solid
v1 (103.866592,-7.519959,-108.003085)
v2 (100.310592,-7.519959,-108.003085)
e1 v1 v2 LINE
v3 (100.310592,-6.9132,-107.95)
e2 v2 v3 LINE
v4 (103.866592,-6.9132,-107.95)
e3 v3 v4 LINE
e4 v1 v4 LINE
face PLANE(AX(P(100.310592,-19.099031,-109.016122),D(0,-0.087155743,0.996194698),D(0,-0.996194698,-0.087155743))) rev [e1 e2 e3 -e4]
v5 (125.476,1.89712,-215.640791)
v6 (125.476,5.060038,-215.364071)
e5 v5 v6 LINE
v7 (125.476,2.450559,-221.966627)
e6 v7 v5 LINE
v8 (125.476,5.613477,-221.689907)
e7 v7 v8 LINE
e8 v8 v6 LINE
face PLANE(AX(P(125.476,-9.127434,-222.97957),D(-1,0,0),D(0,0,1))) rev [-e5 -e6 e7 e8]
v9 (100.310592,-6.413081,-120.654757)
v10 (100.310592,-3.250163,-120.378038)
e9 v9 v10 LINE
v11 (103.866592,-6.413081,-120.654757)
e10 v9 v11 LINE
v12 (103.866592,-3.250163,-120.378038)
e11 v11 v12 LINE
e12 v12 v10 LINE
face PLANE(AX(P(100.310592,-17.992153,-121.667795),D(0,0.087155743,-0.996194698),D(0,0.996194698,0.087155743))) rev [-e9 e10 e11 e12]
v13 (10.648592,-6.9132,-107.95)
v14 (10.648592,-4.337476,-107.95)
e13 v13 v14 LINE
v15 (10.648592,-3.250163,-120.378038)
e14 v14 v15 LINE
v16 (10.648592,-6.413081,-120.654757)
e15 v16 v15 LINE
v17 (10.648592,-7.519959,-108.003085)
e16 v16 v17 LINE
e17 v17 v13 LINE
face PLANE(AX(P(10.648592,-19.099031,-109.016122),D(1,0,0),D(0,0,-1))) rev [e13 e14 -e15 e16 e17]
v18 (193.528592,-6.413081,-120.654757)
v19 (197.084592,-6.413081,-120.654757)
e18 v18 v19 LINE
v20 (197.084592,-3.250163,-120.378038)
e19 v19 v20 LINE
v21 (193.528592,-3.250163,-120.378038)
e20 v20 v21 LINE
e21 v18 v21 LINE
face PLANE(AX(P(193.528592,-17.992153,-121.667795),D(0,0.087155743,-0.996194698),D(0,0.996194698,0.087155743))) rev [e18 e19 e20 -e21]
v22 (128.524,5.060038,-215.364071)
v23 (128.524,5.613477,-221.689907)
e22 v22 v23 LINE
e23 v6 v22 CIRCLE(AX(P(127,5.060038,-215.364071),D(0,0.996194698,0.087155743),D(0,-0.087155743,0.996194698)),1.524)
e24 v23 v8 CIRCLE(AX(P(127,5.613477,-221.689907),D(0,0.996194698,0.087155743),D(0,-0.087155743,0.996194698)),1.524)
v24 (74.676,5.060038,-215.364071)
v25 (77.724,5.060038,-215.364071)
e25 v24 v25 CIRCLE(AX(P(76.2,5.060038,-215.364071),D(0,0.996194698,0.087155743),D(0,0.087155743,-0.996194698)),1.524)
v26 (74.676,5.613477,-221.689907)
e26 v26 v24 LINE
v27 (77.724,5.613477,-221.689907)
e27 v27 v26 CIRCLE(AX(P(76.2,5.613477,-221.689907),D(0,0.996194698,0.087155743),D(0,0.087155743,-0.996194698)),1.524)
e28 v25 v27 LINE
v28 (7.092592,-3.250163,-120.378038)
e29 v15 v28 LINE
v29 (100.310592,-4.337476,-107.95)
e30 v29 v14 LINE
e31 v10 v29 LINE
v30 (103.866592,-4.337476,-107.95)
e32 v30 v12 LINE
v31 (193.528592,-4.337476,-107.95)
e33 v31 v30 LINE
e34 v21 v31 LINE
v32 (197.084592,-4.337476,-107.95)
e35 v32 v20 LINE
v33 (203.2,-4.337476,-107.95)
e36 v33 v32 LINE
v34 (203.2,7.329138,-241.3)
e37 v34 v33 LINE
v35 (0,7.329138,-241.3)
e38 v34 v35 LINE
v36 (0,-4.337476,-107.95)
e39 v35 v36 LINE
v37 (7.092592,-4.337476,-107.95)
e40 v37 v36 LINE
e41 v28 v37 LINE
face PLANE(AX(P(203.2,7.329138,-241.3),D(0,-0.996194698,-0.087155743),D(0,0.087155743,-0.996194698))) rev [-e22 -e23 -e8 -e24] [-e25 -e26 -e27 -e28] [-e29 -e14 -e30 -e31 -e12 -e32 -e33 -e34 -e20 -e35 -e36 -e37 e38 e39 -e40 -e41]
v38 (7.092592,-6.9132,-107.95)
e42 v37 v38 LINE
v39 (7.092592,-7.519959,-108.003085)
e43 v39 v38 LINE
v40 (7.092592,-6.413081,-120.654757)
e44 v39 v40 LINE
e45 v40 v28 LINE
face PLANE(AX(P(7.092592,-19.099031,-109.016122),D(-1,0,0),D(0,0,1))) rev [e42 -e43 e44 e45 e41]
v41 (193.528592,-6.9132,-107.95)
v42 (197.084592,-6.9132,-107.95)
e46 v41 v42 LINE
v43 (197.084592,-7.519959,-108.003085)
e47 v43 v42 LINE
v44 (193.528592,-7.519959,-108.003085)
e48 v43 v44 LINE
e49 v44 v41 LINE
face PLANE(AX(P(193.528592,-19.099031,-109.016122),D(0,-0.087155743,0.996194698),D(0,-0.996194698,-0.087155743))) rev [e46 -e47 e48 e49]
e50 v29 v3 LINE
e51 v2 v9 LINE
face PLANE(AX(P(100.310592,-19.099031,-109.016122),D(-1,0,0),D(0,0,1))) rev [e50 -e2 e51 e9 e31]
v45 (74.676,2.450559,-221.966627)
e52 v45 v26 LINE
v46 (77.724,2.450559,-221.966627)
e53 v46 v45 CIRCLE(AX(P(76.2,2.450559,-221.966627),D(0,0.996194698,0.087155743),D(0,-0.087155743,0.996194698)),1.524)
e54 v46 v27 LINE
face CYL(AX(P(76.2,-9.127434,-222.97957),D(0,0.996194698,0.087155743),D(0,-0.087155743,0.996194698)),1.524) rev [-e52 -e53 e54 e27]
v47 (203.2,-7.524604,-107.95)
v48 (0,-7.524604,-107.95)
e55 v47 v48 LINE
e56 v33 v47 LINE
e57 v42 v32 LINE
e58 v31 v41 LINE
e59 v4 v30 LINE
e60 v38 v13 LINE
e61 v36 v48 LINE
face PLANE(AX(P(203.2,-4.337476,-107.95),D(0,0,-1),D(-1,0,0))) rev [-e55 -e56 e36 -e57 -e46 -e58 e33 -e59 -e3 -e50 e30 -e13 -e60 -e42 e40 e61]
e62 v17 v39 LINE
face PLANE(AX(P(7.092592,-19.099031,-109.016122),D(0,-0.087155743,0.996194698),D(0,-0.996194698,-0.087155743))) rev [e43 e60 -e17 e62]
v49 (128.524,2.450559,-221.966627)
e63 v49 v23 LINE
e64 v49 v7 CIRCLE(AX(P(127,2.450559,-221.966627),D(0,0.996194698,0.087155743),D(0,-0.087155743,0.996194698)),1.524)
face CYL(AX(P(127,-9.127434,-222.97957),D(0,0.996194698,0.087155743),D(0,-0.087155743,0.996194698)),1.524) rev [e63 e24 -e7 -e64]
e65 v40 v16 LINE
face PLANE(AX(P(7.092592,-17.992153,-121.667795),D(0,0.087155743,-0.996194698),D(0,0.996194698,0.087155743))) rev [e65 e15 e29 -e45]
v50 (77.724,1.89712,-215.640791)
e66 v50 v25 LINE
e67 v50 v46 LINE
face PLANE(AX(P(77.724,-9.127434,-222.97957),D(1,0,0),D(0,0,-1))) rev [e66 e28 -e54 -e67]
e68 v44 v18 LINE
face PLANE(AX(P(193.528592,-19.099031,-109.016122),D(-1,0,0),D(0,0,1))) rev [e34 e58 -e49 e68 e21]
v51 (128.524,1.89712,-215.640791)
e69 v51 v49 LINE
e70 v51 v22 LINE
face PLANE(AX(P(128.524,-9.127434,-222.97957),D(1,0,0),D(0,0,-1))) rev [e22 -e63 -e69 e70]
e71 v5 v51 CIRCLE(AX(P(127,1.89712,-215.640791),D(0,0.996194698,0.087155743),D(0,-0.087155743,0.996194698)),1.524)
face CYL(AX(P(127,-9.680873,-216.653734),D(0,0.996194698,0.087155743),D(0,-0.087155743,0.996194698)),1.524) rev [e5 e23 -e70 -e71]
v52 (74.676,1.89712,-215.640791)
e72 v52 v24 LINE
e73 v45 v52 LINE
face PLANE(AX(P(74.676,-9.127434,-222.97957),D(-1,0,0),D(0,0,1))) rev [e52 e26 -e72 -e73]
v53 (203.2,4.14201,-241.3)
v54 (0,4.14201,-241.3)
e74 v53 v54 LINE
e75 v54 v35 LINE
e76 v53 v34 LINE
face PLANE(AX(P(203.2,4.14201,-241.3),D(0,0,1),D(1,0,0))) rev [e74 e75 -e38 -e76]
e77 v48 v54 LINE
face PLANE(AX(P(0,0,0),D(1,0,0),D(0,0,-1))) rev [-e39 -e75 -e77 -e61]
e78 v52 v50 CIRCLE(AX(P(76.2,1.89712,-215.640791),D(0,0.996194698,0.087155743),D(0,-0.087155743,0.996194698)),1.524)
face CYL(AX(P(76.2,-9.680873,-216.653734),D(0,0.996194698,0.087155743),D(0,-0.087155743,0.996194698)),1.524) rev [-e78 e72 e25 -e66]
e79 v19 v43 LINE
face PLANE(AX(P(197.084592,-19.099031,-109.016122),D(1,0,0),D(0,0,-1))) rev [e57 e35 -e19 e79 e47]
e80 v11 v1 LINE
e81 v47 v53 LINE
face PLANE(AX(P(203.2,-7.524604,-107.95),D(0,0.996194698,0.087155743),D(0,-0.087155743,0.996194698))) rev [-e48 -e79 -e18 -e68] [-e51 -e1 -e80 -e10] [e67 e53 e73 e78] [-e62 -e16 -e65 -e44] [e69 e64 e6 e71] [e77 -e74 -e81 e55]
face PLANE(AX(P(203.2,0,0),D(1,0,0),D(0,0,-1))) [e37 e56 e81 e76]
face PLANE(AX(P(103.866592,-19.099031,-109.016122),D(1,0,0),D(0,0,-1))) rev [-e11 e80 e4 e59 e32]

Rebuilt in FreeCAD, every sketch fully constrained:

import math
import FreeCAD as App
import Part
import Sketcher
from FreeCAD import Vector
Q = App.Units.Quantity


def add_polygon(sketch, points):
    """Adds a closed chain of lines whose ends are joined by coincident constraints."""
    first, n = sketch.GeometryCount, len(points)
    for a, b in zip(points, points[1:] + points[:1]):
        sketch.addGeometry(Part.LineSegment(App.Vector(*a, 0), App.Vector(*b, 0)), False)
    for i in range(n):
        sketch.addConstraint(Sketcher.Constraint("Coincident", first + i, 2, first + (i + 1) % n, 1))

doc = App.newDocument("Part")
body = doc.addObject("PartDesign::Body", "Body")

# Sketch on YZ plane
sketch1 = body.newObject("Sketcher::SketchObject", "Sketch")
sketch1.AttachmentSupport = (doc.getObject("YZ_Plane"), [""])
sketch1.MapMode = "FlatFace"
add_polygon(sketch1, [(-4.3, -108), (-7.5, -108), (4.1, -241.3), (7.3, -241.3)])  # lines 0-3
sketch1.addConstraint([
    Sketcher.Constraint("Horizontal", 0),
    Sketcher.Constraint("Horizontal", 2),
    Sketcher.Constraint("Parallel", 1, 3),
    Sketcher.Constraint("Angle", 1, Q("-85 deg")),
    Sketcher.Constraint("DistanceY", 1, 2, -1, 1, Q("9.5 in")),
    Sketcher.Constraint("DistanceY", 0, 2, -1, 1, Q("4.25 in")),
    Sketcher.Constraint("DistanceX", 0, 2, 0, 1, Q("3.187128 mm")),
    Sketcher.Constraint("DistanceX", -1, 1, 1, 2, Q("4.14201 mm")),
])
pad1 = body.newObject("PartDesign::Pad", "Pad")
pad1.Profile = sketch1
pad1.Length = Q("8 in")

# Sketch on an angled plane
sketch2 = body.newObject("Sketcher::SketchObject", "Sketch001")
sketch2.Placement = App.Placement(Vector(0, -13.677188, -1.196599), App.Rotation(Vector(1, 0, 0), Vector(0, 0.087155743, -0.996194698), Vector(0, 0.996194698, 0.087155743), "ZXY"))
sketch2.addGeometry([
    Part.LineSegment(Vector(74.7, 221.3, 0), Vector(74.7, 215, 0)),  # 0
    Part.ArcOfCircle(Part.Circle(Vector(76.2, 215, 0), Vector(0, 0, 1), 1.5), math.radians(180), math.radians(360)),  # 1
    Part.LineSegment(Vector(77.7, 215, 0), Vector(77.7, 221.3, 0)),  # 2
    Part.ArcOfCircle(Part.Circle(Vector(76.2, 221.3, 0), Vector(0, 0, 1), 1.5), math.radians(0), math.radians(180)),  # 3
    Part.LineSegment(Vector(128.5, 215, 0), Vector(128.5, 221.3, 0)),  # 4
    Part.ArcOfCircle(Part.Circle(Vector(127, 221.3, 0), Vector(0, 0, 1), 1.5), math.radians(0), math.radians(180)),  # 5
    Part.LineSegment(Vector(125.5, 221.3, 0), Vector(125.5, 215, 0)),  # 6
    Part.ArcOfCircle(Part.Circle(Vector(127, 215, 0), Vector(0, 0, 1), 1.5), math.radians(180), math.radians(360)),  # 7
], False)
sketch2.addConstraint([
    Sketcher.Constraint("Tangent", 0, 2, 1, 1),
    Sketcher.Constraint("Tangent", 1, 2, 2, 1),
    Sketcher.Constraint("Tangent", 2, 2, 3, 1),
    Sketcher.Constraint("Tangent", 3, 2, 0, 1),
    Sketcher.Constraint("Tangent", 4, 2, 5, 1),
    Sketcher.Constraint("Tangent", 5, 2, 6, 1),
    Sketcher.Constraint("Tangent", 6, 2, 7, 1),
    Sketcher.Constraint("Tangent", 7, 2, 4, 1),
    Sketcher.Constraint("Vertical", 0),
    Sketcher.Constraint("Vertical", 2),
    Sketcher.Constraint("Vertical", 4),
    Sketcher.Constraint("Vertical", 6),
    Sketcher.Constraint("Equal", 3, 5),
    Sketcher.Constraint("Horizontal", 3, 3, 5, 3),
    Sketcher.Constraint("Horizontal", 1, 3, 7, 3),
    Sketcher.Constraint("Radius", 1, Q("0.06 in")),
    Sketcher.Constraint("DistanceX", -1, 1, 1, 3, Q("3 in")),
    Sketcher.Constraint("DistanceX", -1, 1, 5, 3, Q("5 in")),
    Sketcher.Constraint("DistanceY", 0, 2, 0, 1, Q("0.25 in")),
    Sketcher.Constraint("DistanceY", -1, 1, 1, 3, Q("214.985557 mm")),
])
pocket1 = body.newObject("PartDesign::Pocket", "Pocket")
pocket1.Profile = sketch2
pocket1.Type = "ThroughAll"

# Sketch on an angled plane
sketch3 = body.newObject("Sketcher::SketchObject", "Sketch002")
sketch3.Placement = App.Placement(Vector(0, -13.677188, -1.196599), App.Rotation(Vector(1, 0, 0), Vector(0, 0.087155743, -0.996194698), Vector(0, 0.996194698, 0.087155743), "ZXY"))
add_polygon(sketch3, [(7.1, 119.6), (7.1, 106.9), (10.6, 106.9), (10.6, 119.6)])  # lines 0-3
sketch3.addConstraint([
    Sketcher.Constraint("Vertical", 0),
    Sketcher.Constraint("Horizontal", 1),
    Sketcher.Constraint("Vertical", 2),
    Sketcher.Constraint("Horizontal", 3),
    Sketcher.Constraint("DistanceY", 0, 2, 0, 1, Q("0.5 in")),
    Sketcher.Constraint("DistanceX", 1, 1, 1, 2, Q("0.14 in")),
    Sketcher.Constraint("DistanceX", -1, 1, 0, 2, Q("7.092592 mm")),
    Sketcher.Constraint("DistanceY", -1, 1, 0, 2, Q("106.936693 mm")),
])
pocket2 = body.newObject("PartDesign::Pocket", "Pocket001")
pocket2.Profile = sketch3
pocket2.Type = "UpToFirst"

# Sketch on an angled plane
sketch4 = body.newObject("Sketcher::SketchObject", "Sketch003")
sketch4.Placement = App.Placement(Vector(0, -13.677188, -1.196599), App.Rotation(Vector(1, 0, 0), Vector(0, 0.087155743, -0.996194698), Vector(0, 0.996194698, 0.087155743), "ZXY"))
add_polygon(sketch4, [(100.3, 119.6), (100.3, 106.9), (103.9, 106.9), (103.9, 119.6)])  # lines 0-3
sketch4.addConstraint([
    Sketcher.Constraint("Vertical", 0),
    Sketcher.Constraint("Horizontal", 1),
    Sketcher.Constraint("Vertical", 2),
    Sketcher.Constraint("Horizontal", 3),
    Sketcher.Constraint("DistanceY", 0, 2, 0, 1, Q("0.5 in")),
    Sketcher.Constraint("DistanceX", 1, 1, 1, 2, Q("0.14 in")),
    Sketcher.Constraint("DistanceX", -1, 1, 0, 2, Q("100.310592 mm")),
    Sketcher.Constraint("DistanceY", -1, 1, 0, 2, Q("106.936693 mm")),
])
pocket3 = body.newObject("PartDesign::Pocket", "Pocket002")
pocket3.Profile = sketch4
pocket3.Type = "UpToFirst"

# Sketch on an angled plane
sketch5 = body.newObject("Sketcher::SketchObject", "Sketch004")
sketch5.Placement = App.Placement(Vector(0, -13.677188, -1.196599), App.Rotation(Vector(1, 0, 0), Vector(0, 0.087155743, -0.996194698), Vector(0, 0.996194698, 0.087155743), "ZXY"))
add_polygon(sketch5, [(193.5, 119.6), (193.5, 106.9), (197.1, 106.9), (197.1, 119.6)])  # lines 0-3
sketch5.addConstraint([
    Sketcher.Constraint("Vertical", 0),
    Sketcher.Constraint("Horizontal", 1),
    Sketcher.Constraint("Vertical", 2),
    Sketcher.Constraint("Horizontal", 3),
    Sketcher.Constraint("DistanceY", 0, 2, 0, 1, Q("0.5 in")),
    Sketcher.Constraint("DistanceX", 1, 1, 1, 2, Q("0.14 in")),
    Sketcher.Constraint("DistanceX", -1, 1, 0, 2, Q("193.528592 mm")),
    Sketcher.Constraint("DistanceY", -1, 1, 0, 2, Q("106.936693 mm")),
])
pocket4 = body.newObject("PartDesign::Pocket", "Pocket003")
pocket4.Profile = sketch5
pocket4.Type = "UpToFirst"

doc.recompute()
